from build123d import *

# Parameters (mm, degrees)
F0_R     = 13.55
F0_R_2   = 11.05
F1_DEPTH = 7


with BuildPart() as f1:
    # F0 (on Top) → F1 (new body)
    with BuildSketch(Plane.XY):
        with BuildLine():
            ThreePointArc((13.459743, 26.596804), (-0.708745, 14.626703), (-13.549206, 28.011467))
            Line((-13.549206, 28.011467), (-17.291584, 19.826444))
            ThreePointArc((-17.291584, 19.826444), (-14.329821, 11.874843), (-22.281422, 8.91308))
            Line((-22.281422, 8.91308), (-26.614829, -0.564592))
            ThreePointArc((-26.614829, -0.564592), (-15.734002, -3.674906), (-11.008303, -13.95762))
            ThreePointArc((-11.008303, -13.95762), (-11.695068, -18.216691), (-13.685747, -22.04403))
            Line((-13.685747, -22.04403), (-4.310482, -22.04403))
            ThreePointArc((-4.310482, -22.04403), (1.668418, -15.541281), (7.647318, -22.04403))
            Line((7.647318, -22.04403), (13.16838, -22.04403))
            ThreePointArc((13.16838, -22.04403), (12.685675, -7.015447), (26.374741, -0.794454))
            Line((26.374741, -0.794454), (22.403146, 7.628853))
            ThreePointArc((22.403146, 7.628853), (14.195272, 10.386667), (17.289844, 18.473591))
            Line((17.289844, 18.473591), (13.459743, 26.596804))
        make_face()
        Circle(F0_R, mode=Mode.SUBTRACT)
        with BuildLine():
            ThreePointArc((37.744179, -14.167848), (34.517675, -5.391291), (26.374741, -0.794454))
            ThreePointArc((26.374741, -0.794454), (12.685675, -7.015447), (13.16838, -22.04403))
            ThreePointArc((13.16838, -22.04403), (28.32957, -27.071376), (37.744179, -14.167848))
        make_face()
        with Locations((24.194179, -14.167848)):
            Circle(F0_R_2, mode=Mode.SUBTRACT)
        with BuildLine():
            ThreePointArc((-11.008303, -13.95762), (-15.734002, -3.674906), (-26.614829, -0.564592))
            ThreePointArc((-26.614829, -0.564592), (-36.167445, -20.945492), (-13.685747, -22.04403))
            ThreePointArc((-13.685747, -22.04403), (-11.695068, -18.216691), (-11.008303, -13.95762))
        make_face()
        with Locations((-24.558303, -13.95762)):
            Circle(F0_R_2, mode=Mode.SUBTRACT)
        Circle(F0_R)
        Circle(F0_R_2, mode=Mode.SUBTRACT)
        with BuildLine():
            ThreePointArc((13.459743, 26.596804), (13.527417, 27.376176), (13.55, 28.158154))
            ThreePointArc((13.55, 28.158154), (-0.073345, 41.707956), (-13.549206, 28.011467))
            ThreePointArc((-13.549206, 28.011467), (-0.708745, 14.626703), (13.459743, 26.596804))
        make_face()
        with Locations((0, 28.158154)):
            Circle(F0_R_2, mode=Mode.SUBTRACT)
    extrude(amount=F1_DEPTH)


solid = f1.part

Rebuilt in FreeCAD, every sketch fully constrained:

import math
import FreeCAD as App
import Part
import Sketcher

V = App.Vector
Q = App.Units.Quantity

doc = App.newDocument("Part")
params = doc.addObject("Spreadsheet::Sheet", "Params")
for row, (alias, value) in enumerate([
    ("sketch1_radius", "6 mm"),
    ("sketch1_radius2", "6 mm"),
    ("sketch1_radius3", "6 mm"),
    ("sketch1_diameter", "22.1 mm"),
    ("sketch1_diameter2", "22.1 mm"),
    ("pad1_length", "7 mm"),
], start=1):
    params.set(f"A{row}", alias)
    params.set(f"B{row}", "=" + value)
    params.setAlias(f"B{row}", alias)

body = doc.addObject("PartDesign::Body", "Body")

# Sketch on XY plane
sketch1 = body.newObject("Sketcher::SketchObject", "Sketch")
sketch1.AttachmentSupport = (doc.getObject("XY_Plane"), [""])
sketch1.MapMode = "FlatFace"
sketch1.addGeometry([
    Part.LineSegment(V(17.289844, 18.473591, 0), V(13.459743, 26.596804, 0)),  # 0
    Part.ArcOfCircle(Part.Circle(V(0.000057, 28.158152, 0), V(0, 0, 1), 13.549943), math.radians(-6.616841), math.radians(0.000008)),  # 1
    Part.ArcOfCircle(Part.Circle(V(0, 28.158154, 0), V(0, 0, 1), 13.55), math.radians(-0.000002), math.radians(180.620276)),  # 2
    Part.LineSegment(V(-13.549206, 28.011467, 0), V(-17.291584, 19.826444, 0)),  # 3
    Part.ArcOfCircle(Part.Circle(V(-19.786503, 14.369762, 0), V(0, 0, 1), 6), math.radians(-114.570956), math.radians(65.429044)),  # 4
    Part.LineSegment(V(-22.281422, 8.91308, 0), V(-26.614829, -0.564592, 0)),  # 5
    Part.ArcOfCircle(Part.Circle(V(-24.558304, -13.957621, 0), V(0, 0, 1), 13.55), math.radians(98.729693), math.radians(323.360159)),  # 6
    Part.LineSegment(V(-13.685747, -22.04403, 0), V(-4.310482, -22.04403, 0)),  # 7
    Part.ArcOfCircle(Part.Circle(V(1.668418, -21.541281, 0), V(0, 0, 1), 6), math.radians(-4.806534), math.radians(184.806534)),  # 8
    Part.LineSegment(V(7.647318, -22.04403, 0), V(13.16838, -22.04403, 0)),  # 9
    Part.ArcOfCircle(Part.Circle(V(24.194179, -14.167848, 0), V(0, 0, 1), 13.55), math.radians(-144.460219), math.radians(0)),  # 10
    Part.ArcOfCircle(Part.Circle(V(24.19418, -14.167846, 0), V(0, 0, 1), 13.549999), math.radians(-0.000007), math.radians(80.739293)),  # 11
    Part.LineSegment(V(26.374741, -0.794454, 0), V(22.403146, 7.628853, 0)),  # 12
    Part.ArcOfCircle(Part.Circle(V(19.622275, 12.945502, 0), V(0, 0, 1), 6), math.radians(112.876029), math.radians(297.611795)),  # 13
    Part.Circle(V(-24.558303, -13.95762, 0), V(0, 0, 1), 11.05),  # 14
    Part.Circle(V(24.194179, -14.167848, 0), V(0, 0, 1), 11.05),  # 15
    Part.Circle(V(0, 0, 0), V(0, 0, 1), 11.05),  # 16
    Part.Circle(V(0, 28.158154, 0), V(0, 0, 1), 11.05),  # 17
], False)
sketch1.addConstraint([
    Sketcher.Constraint("Coincident", 0, 2, 1, 1),
    Sketcher.Constraint("Coincident", 1, 2, 2, 1),
    Sketcher.Constraint("Coincident", 2, 2, 3, 1),
    Sketcher.Constraint("Coincident", 3, 2, 4, 2),
    Sketcher.Constraint("Coincident", 4, 1, 5, 1),
    Sketcher.Constraint("Coincident", 5, 2, 6, 1),
    Sketcher.Constraint("Coincident", 6, 2, 7, 1),
    Sketcher.Constraint("Coincident", 7, 2, 8, 2),
    Sketcher.Constraint("Coincident", 8, 1, 9, 1),
    Sketcher.Constraint("Coincident", 9, 2, 10, 1),
    Sketcher.Constraint("Coincident", 10, 2, 11, 1),
    Sketcher.Constraint("Coincident", 11, 2, 12, 1),
    Sketcher.Constraint("Coincident", 12, 2, 13, 2),
    Sketcher.Constraint("Coincident", 13, 1, 0, 1),
    Sketcher.Constraint("Horizontal", 7),
    Sketcher.Constraint("Horizontal", 9),
    Sketcher.Constraint("Coincident", 16, 3, -1, 1),
    Sketcher.Constraint("Coincident", 11, 3, 10, 3),
    Sketcher.Constraint("Coincident", 14, 3, 6, 3),
    Sketcher.Constraint("Coincident", 15, 3, 10, 3),
    Sketcher.Constraint("Coincident", 17, 3, 2, 3),
    Sketcher.Constraint("PointOnObject", 2, 3, -2),
    Sketcher.Constraint("Radius", 4, Q("6 mm")),
    Sketcher.Constraint("Radius", 8, Q("6 mm")),
    Sketcher.Constraint("Radius", 13, Q("6 mm")),
    Sketcher.Constraint("Diameter", 14, Q("22.1 mm")),
    Sketcher.Constraint("Diameter", 15, Q("22.1 mm")),
    Sketcher.Constraint("Diameter", 16, Q("22.1 mm")),
    Sketcher.Constraint("Diameter", 17, Q("22.1 mm")),
    Sketcher.Constraint("Radius", 2, Q("13.55 mm")),
    Sketcher.Constraint("Radius", 6, Q("13.55 mm")),
    Sketcher.Constraint("Radius", 10, Q("13.55 mm")),
    Sketcher.Constraint("Distance", 3, Q("9 mm")),
    Sketcher.Constraint("Radius", 1, Q("13.549943 mm")),
    Sketcher.Constraint("DistanceY", 10, 3, 1, 3, Q("42.326 mm")),
    Sketcher.Constraint("DistanceY", 11, 3, 2, 3, Q("42.326001 mm")),
    Sketcher.Constraint("DistanceX", 6, 3, 4, 3, Q("4.771801 mm")),
    Sketcher.Constraint("DistanceY", 13, 3, 0, 2, Q("13.651302 mm")),
    Sketcher.Constraint("DistanceY", 14, 3, 4, 1, Q("22.8707 mm")),
    Sketcher.Constraint("DistanceX", 7, 2, 8, 3, Q("5.9789 mm")),
    Sketcher.Constraint("DistanceX", 8, 3, 8, 1, Q("5.9789 mm")),
    Sketcher.Constraint("DistanceX", 9, 2, 15, 3, Q("11.025799 mm")),
    Sketcher.Constraint("DistanceY", 11, 3, 12, 2, Q("21.796699 mm")),
    Sketcher.Constraint("DistanceX", 0, 2, 13, 1, Q("3.830101 mm")),
    Sketcher.Constraint("Distance", 12, Q("9.312662 mm")),
    Sketcher.Constraint("DistanceX", 7, 1, 7, 2, Q("9.375265 mm")),
    Sketcher.Constraint("DistanceX", 9, 1, 9, 2, Q("5.521062 mm")),
    Sketcher.Constraint("DistanceY", 6, 3, -1, 1, Q("13.957621 mm")),
    Sketcher.Constraint("DistanceY", 8, 3, -1, 1, Q("21.541281 mm")),
    Sketcher.Constraint("DistanceX", -1, 1, 10, 3, Q("24.194179 mm")),
    Sketcher.Constraint("DistanceX", 5, 2, -1, 1, Q("26.614829 mm")),
    Sketcher.Constraint("DistanceX", -1, 1, 11, 2, Q("26.374741 mm")),
    Sketcher.Constraint("DistanceY", -1, 1, 13, 1, Q("18.473591 mm")),
    Sketcher.Constraint("DistanceY", 4, 3, 1, 3, Q("13.78839 mm")),
    Sketcher.Constraint("DistanceY", 0, 2, 1, 2, Q("1.56135 mm")),
    Sketcher.Constraint("DistanceX", 4, 3, 3, 2, Q("2.494919 mm")),
    Sketcher.Constraint("DistanceY", 10, 2, -1, 1, Q("14.167848 mm")),
])
sketch1.setExpression("Constraints[22]", "Params.sketch1_radius")
sketch1.setExpression("Constraints[23]", "Params.sketch1_radius2")
sketch1.setExpression("Constraints[24]", "Params.sketch1_radius3")
sketch1.setExpression("Constraints[25]", "Params.sketch1_diameter")
sketch1.setExpression("Constraints[26]", "Params.sketch1_diameter2")
pad1 = body.newObject("PartDesign::Pad", "Pad")
pad1.Profile = sketch1
pad1.setExpression("Length", "Params.pad1_length")

doc.recompute()
